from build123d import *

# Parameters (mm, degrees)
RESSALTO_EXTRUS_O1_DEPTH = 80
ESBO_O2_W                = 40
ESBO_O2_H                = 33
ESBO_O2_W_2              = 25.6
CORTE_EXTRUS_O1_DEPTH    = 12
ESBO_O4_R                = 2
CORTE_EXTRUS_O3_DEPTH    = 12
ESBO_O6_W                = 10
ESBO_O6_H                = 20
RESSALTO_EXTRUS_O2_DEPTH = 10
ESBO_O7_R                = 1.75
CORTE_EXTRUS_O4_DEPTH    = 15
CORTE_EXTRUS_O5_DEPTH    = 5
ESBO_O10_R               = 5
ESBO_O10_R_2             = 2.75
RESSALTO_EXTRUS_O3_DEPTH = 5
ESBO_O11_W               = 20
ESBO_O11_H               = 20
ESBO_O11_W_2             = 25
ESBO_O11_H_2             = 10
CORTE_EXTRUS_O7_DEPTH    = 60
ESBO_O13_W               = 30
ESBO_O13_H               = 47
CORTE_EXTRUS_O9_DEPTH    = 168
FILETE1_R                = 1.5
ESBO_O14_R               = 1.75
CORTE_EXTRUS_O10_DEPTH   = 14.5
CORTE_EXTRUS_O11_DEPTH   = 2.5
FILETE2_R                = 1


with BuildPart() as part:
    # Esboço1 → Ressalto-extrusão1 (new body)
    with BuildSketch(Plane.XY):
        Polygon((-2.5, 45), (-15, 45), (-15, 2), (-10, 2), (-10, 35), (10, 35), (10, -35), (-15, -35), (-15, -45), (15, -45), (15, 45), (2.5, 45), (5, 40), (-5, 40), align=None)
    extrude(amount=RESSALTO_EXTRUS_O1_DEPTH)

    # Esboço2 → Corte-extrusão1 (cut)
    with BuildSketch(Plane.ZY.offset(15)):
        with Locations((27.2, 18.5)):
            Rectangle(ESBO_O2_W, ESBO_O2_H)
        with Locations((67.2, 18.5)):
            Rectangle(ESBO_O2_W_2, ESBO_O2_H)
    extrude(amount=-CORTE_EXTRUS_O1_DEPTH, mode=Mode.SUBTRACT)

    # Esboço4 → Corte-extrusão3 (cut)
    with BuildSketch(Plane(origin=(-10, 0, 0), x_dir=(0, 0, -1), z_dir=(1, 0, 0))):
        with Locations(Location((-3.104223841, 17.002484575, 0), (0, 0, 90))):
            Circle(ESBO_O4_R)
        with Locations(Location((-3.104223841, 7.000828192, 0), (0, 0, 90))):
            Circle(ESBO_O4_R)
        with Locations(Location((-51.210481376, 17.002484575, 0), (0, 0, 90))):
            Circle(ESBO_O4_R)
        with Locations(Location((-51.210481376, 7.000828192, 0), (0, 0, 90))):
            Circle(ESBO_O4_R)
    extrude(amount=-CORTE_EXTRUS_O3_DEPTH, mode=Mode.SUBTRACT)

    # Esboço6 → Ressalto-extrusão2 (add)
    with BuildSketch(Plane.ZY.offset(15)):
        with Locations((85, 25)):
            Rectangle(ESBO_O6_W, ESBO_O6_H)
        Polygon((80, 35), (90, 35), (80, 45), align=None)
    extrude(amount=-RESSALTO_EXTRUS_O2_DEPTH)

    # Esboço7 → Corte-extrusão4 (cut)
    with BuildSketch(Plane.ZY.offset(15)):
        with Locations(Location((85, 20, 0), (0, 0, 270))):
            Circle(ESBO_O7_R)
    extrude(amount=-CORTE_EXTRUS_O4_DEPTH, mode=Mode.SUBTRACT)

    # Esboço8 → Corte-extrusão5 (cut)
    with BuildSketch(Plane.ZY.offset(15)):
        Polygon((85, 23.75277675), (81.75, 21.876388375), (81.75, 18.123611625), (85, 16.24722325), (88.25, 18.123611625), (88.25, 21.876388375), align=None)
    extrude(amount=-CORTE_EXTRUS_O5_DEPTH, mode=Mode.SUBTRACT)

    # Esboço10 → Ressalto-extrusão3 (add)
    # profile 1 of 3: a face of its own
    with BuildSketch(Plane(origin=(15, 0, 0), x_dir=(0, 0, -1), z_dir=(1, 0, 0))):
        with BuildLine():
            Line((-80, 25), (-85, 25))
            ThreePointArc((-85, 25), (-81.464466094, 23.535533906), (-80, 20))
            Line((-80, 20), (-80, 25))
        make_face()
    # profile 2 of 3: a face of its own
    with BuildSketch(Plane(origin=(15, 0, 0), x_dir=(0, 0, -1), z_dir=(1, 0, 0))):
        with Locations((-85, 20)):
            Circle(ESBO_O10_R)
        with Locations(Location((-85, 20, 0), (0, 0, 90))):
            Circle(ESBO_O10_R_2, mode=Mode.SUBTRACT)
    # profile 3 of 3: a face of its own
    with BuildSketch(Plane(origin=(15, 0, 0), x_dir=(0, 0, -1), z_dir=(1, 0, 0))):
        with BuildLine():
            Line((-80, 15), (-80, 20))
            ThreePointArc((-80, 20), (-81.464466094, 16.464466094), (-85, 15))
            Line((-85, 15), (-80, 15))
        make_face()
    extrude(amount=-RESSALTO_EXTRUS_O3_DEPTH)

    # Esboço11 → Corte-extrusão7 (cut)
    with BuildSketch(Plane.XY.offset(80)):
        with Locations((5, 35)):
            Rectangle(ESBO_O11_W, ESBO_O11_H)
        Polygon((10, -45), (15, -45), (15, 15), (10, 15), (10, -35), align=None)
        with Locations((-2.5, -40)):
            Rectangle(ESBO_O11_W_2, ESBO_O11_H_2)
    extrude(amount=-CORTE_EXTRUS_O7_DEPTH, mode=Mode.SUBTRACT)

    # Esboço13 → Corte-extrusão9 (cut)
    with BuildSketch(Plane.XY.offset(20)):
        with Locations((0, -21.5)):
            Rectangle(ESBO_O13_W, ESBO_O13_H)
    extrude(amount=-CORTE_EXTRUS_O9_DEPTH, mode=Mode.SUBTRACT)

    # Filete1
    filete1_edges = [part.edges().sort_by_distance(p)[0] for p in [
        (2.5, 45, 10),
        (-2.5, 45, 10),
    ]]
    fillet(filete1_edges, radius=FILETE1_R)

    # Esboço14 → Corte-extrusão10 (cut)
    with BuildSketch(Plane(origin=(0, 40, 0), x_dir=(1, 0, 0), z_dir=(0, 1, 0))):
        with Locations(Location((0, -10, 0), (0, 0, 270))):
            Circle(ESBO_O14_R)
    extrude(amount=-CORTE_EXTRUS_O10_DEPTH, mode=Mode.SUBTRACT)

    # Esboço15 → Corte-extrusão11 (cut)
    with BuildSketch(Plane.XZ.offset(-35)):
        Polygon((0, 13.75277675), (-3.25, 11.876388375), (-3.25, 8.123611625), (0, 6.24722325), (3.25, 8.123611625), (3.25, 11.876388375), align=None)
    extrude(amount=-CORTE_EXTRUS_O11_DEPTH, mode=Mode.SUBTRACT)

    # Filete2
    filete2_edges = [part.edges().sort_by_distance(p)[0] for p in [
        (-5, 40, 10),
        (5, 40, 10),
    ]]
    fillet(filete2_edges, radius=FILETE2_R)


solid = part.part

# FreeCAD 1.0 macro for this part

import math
import FreeCAD as App
import Part
import Sketcher

V = App.Vector
Q = App.Units.Quantity


def edges_at(feature, points):
    """Names of the edges that pass closest to the given points."""
    edges = feature.Shape.Edges
    near = lambda p: min(range(len(edges)), key=lambda i: edges[i].distToShape(Part.Vertex(*p))[0])
    return sorted({f"Edge{near(p) + 1}" for p in points})

doc = App.newDocument("Part")
body = doc.addObject("PartDesign::Body", "Body")

# Sketch on XY plane
sketch1 = body.newObject("Sketcher::SketchObject", "Sketch")
sketch1.AttachmentSupport = (doc.getObject("XY_Plane"), [""])
sketch1.MapMode = "FlatFace"
sketch1.addGeometry([
    Part.LineSegment(V(-2.5, 45, 0), V(-15, 45, 0)),  # 0
    Part.LineSegment(V(-15, 45, 0), V(-15, 2, 0)),  # 1
    Part.LineSegment(V(-15, 2, 0), V(-10, 2, 0)),  # 2
    Part.LineSegment(V(-10, 2, 0), V(-10, 35, 0)),  # 3
    Part.LineSegment(V(-10, 35, 0), V(10, 35, 0)),  # 4
    Part.LineSegment(V(10, 35, 0), V(10, -35, 0)),  # 5
    Part.LineSegment(V(10, -35, 0), V(-15, -35, 0)),  # 6
    Part.LineSegment(V(-15, -35, 0), V(-15, -45, 0)),  # 7
    Part.LineSegment(V(-15, -45, 0), V(15, -45, 0)),  # 8
    Part.LineSegment(V(15, -45, 0), V(15, 45, 0)),  # 9
    Part.LineSegment(V(15, 45, 0), V(2.5, 45, 0)),  # 10
    Part.LineSegment(V(2.5, 45, 0), V(5, 40, 0)),  # 11
    Part.LineSegment(V(5, 40, 0), V(-5, 40, 0)),  # 12
    Part.LineSegment(V(-5, 40, 0), V(-2.5, 45, 0)),  # 13
], False)
sketch1.addConstraint([
    Sketcher.Constraint("Coincident", 0, 2, 1, 1),
    Sketcher.Constraint("Coincident", 1, 2, 2, 1),
    Sketcher.Constraint("Coincident", 2, 2, 3, 1),
    Sketcher.Constraint("Coincident", 3, 2, 4, 1),
    Sketcher.Constraint("Coincident", 4, 2, 5, 1),
    Sketcher.Constraint("Coincident", 5, 2, 6, 1),
    Sketcher.Constraint("Coincident", 6, 2, 7, 1),
    Sketcher.Constraint("Coincident", 7, 2, 8, 1),
    Sketcher.Constraint("Coincident", 8, 2, 9, 1),
    Sketcher.Constraint("Coincident", 9, 2, 10, 1),
    Sketcher.Constraint("Coincident", 10, 2, 11, 1),
    Sketcher.Constraint("Coincident", 11, 2, 12, 1),
    Sketcher.Constraint("Coincident", 12, 2, 13, 1),
    Sketcher.Constraint("Coincident", 13, 2, 0, 1),
    Sketcher.Constraint("Horizontal", 0),
    Sketcher.Constraint("Vertical", 1),
    Sketcher.Constraint("Horizontal", 2),
    Sketcher.Constraint("Vertical", 3),
    Sketcher.Constraint("Horizontal", 4),
    Sketcher.Constraint("Vertical", 5),
    Sketcher.Constraint("Horizontal", 6),
    Sketcher.Constraint("Vertical", 7),
    Sketcher.Constraint("Horizontal", 8),
    Sketcher.Constraint("Vertical", 9),
    Sketcher.Constraint("Horizontal", 10),
    Sketcher.Constraint("Horizontal", 12),
    Sketcher.Constraint("Symmetric", 3, 2, 5, 2, -1, 1),
    Sketcher.Constraint("Symmetric", 0, 2, 8, 2, -1, 1),
    Sketcher.Constraint("Symmetric", 7, 2, 9, 2, -1, 1),
    Sketcher.Constraint("Equal", 0, 10),
    Sketcher.Constraint("Equal", 12, 7),
    Sketcher.Constraint("Equal", 11, 13),
    Sketcher.Constraint("DistanceX", 2, 1, 2, 2, 5.0),
    Sketcher.Constraint("DistanceX", 4, 1, 4, 2, 20.0),
    Sketcher.Constraint("DistanceX", 12, 2, 12, 1, 10.0),
    Sketcher.Constraint("DistanceY", 1, 2, 1, 1, 43.0),
    Sketcher.Constraint("DistanceY", 5, 2, 5, 1, 70.0),
    Sketcher.Constraint("DistanceX", 0, 2, 0, 1, 12.5),
    Sketcher.Constraint("DistanceY", -1, 1, 11, 2, 40.0),
])
pad1 = body.newObject("PartDesign::Pad", "Pad")
pad1.Profile = sketch1
pad1.Length = 80

# Sketch on YZ plane
sketch2 = body.newObject("Sketcher::SketchObject", "Sketch001")
sketch2.AttachmentSupport = (doc.getObject("YZ_Plane"), [""])
sketch2.MapMode = "FlatFace"
sketch2.AttachmentOffset = App.Placement(V(0, 0, -15), App.Rotation())
sketch2.addGeometry([
    Part.LineSegment(V(35, 7.2, 0), V(2, 7.2, 0)),  # 0
    Part.LineSegment(V(2, 7.2, 0), V(2, 47.2, 0)),  # 1
    Part.LineSegment(V(2, 47.2, 0), V(35, 47.2, 0)),  # 2
    Part.LineSegment(V(35, 47.2, 0), V(35, 7.2, 0)),  # 3
    Part.LineSegment(V(35, 54.4, 0), V(2, 54.4, 0)),  # 4
    Part.LineSegment(V(2, 54.4, 0), V(2, 80, 0)),  # 5
    Part.LineSegment(V(2, 80, 0), V(35, 80, 0)),  # 6
    Part.LineSegment(V(35, 80, 0), V(35, 54.4, 0)),  # 7
], False)
sketch2.addConstraint([
    Sketcher.Constraint("Coincident", 0, 2, 1, 1),
    Sketcher.Constraint("Coincident", 1, 2, 2, 1),
    Sketcher.Constraint("Coincident", 2, 2, 3, 1),
    Sketcher.Constraint("Coincident", 3, 2, 0, 1),
    Sketcher.Constraint("Coincident", 4, 2, 5, 1),
    Sketcher.Constraint("Coincident", 5, 2, 6, 1),
    Sketcher.Constraint("Coincident", 6, 2, 7, 1),
    Sketcher.Constraint("Coincident", 7, 2, 4, 1),
    Sketcher.Constraint("Horizontal", 0),
    Sketcher.Constraint("Vertical", 1),
    Sketcher.Constraint("Horizontal", 2),
    Sketcher.Constraint("Vertical", 3),
    Sketcher.Constraint("Horizontal", 4),
    Sketcher.Constraint("Vertical", 5),
    Sketcher.Constraint("Horizontal", 6),
    Sketcher.Constraint("Vertical", 7),
    Sketcher.Constraint("Vertical", 1, 2, 4, 2),
    Sketcher.Constraint("Vertical", 3, 2, 6, 2),
    Sketcher.Constraint("DistanceX", 0, 2, 0, 1, 33.0),
    Sketcher.Constraint("DistanceY", 1, 1, 1, 2, 40.0),
    Sketcher.Constraint("DistanceY", 5, 1, 5, 2, 25.6),
    Sketcher.Constraint("DistanceX", -1, 1, 0, 2, 2.0),
    Sketcher.Constraint("DistanceY", -1, 1, 5, 2, 80.0),
    Sketcher.Constraint("DistanceY", -1, 1, 0, 2, 7.2),
])
pocket1 = body.newObject("PartDesign::Pocket", "Pocket")
pocket1.Profile = sketch2
pocket1.Length = 12
pocket1.Reversed = True

# Sketch on YZ plane
sketch3 = body.newObject("Sketcher::SketchObject", "Sketch002")
sketch3.AttachmentSupport = (doc.getObject("YZ_Plane"), [""])
sketch3.MapMode = "FlatFace"
sketch3.AttachmentOffset = App.Placement(V(0, 0, -10), App.Rotation())
sketch3.addGeometry([
    Part.Circle(V(17.002485, 3.104224, 0), V(0, 0, 1), 2),
    Part.Circle(V(7.000828, 3.104224, 0), V(0, 0, 1), 2),
    Part.Circle(V(17.002485, 51.210481, 0), V(0, 0, 1), 2),
    Part.Circle(V(7.000828, 51.210481, 0), V(0, 0, 1), 2),
], False)
sketch3.addConstraint([
    Sketcher.Constraint("Equal", 0, 1),
    Sketcher.Constraint("Equal", 1, 2),
    Sketcher.Constraint("Equal", 2, 3),
    Sketcher.Constraint("Horizontal", 0, 3, 1, 3),
    Sketcher.Constraint("Horizontal", 2, 3, 3, 3),
    Sketcher.Constraint("Vertical", 0, 3, 2, 3),
    Sketcher.Constraint("Vertical", 1, 3, 3, 3),
    Sketcher.Constraint("Diameter", 0, 4.0),
    Sketcher.Constraint("DistanceX", -1, 1, 1, 3, 7.000828),
    Sketcher.Constraint("DistanceY", -1, 1, 2, 3, 51.210481),
    Sketcher.Constraint("DistanceX", -1, 1, 0, 3, 17.002485),
    Sketcher.Constraint("DistanceY", -1, 1, 0, 3, 3.104224),
])
pocket2 = body.newObject("PartDesign::Pocket", "Pocket001")
pocket2.Profile = sketch3
pocket2.Length = 12

# Sketch on YZ plane
sketch4 = body.newObject("Sketcher::SketchObject", "Sketch003")
sketch4.AttachmentSupport = (doc.getObject("YZ_Plane"), [""])
sketch4.MapMode = "FlatFace"
sketch4.AttachmentOffset = App.Placement(V(0, 0, -15), App.Rotation())
sketch4.addGeometry([
    Part.LineSegment(V(15, 80, 0), V(15, 90, 0)),
    Part.LineSegment(V(15, 90, 0), V(35, 90, 0)),
    Part.LineSegment(V(35, 90, 0), V(45, 80, 0)),
    Part.LineSegment(V(45, 80, 0), V(15, 80, 0)),
], False)
sketch4.addConstraint([
    Sketcher.Constraint("Coincident", 0, 2, 1, 1),
    Sketcher.Constraint("Coincident", 1, 2, 2, 1),
    Sketcher.Constraint("Coincident", 2, 2, 3, 1),
    Sketcher.Constraint("Coincident", 3, 2, 0, 1),
    Sketcher.Constraint("Vertical", 0),
    Sketcher.Constraint("Horizontal", 1),
    Sketcher.Constraint("Horizontal", 3),
    Sketcher.Constraint("DistanceX", 1, 1, 1, 2, 20.0),
    Sketcher.Constraint("DistanceX", 3, 2, 3, 1, 30.0),
    Sketcher.Constraint("DistanceY", 0, 1, 0, 2, 10.0),
    Sketcher.Constraint("DistanceX", -1, 1, 0, 2, 15.0),
    Sketcher.Constraint("DistanceY", -1, 1, 0, 2, 90.0),
])
pad2 = body.newObject("PartDesign::Pad", "Pad001")
pad2.Profile = sketch4
pad2.Length = 10

# Sketch on YZ plane
sketch5 = body.newObject("Sketcher::SketchObject", "Sketch004")
sketch5.AttachmentSupport = (doc.getObject("YZ_Plane"), [""])
sketch5.MapMode = "FlatFace"
sketch5.AttachmentOffset = App.Placement(V(0, 0, -15), App.Rotation())
sketch5.addGeometry(Part.Circle(V(20, 85, 0), V(0, 0, 1), 1.75), False)
sketch5.addConstraint([
    Sketcher.Constraint("Diameter", 0, 3.5),
    Sketcher.Constraint("DistanceX", -1, 1, 0, 3, 20.0),
    Sketcher.Constraint("DistanceY", -1, 1, 0, 3, 85.0),
])
pocket3 = body.newObject("PartDesign::Pocket", "Pocket002")
pocket3.Profile = sketch5
pocket3.Length = 15
pocket3.Reversed = True

# Sketch on YZ plane
sketch6 = body.newObject("Sketcher::SketchObject", "Sketch005")
sketch6.AttachmentSupport = (doc.getObject("YZ_Plane"), [""])
sketch6.MapMode = "FlatFace"
sketch6.AttachmentOffset = App.Placement(V(0, 0, -15), App.Rotation())
sketch6.addGeometry([
    Part.LineSegment(V(23.752777, 85, 0), V(21.876388, 81.75, 0)),  # 0
    Part.LineSegment(V(21.876388, 81.75, 0), V(18.123612, 81.75, 0)),  # 1
    Part.LineSegment(V(18.123612, 81.75, 0), V(16.247223, 85, 0)),  # 2
    Part.LineSegment(V(16.247223, 85, 0), V(18.123612, 88.25, 0)),  # 3
    Part.LineSegment(V(18.123612, 88.25, 0), V(21.876388, 88.25, 0)),  # 4
    Part.LineSegment(V(21.876388, 88.25, 0), V(23.752777, 85, 0)),  # 5
], False)
sketch6.addConstraint([
    Sketcher.Constraint("Coincident", 0, 2, 1, 1),
    Sketcher.Constraint("Coincident", 1, 2, 2, 1),
    Sketcher.Constraint("Coincident", 2, 2, 3, 1),
    Sketcher.Constraint("Coincident", 3, 2, 4, 1),
    Sketcher.Constraint("Coincident", 4, 2, 5, 1),
    Sketcher.Constraint("Coincident", 5, 2, 0, 1),
    Sketcher.Constraint("Horizontal", 1),
    Sketcher.Constraint("Horizontal", 4),
    Sketcher.Constraint("Parallel", 0, 3),
    Sketcher.Constraint("Parallel", 2, 5),
    Sketcher.Constraint("Horizontal", 2, 2, 5, 2),
    Sketcher.Constraint("Vertical", 1, 2, 3, 2),
    Sketcher.Constraint("Vertical", 0, 2, 4, 2),
    Sketcher.Constraint("Angle", 0, Q("-120 deg")),
    Sketcher.Constraint("DistanceY", -1, 1, 2, 2, 85.0),
    Sketcher.Constraint("DistanceY", 1, 2, 3, 2, 6.5),
    Sketcher.Constraint("DistanceX", 1, 2, 1, 1, 3.752777),
    Sketcher.Constraint("DistanceX", -1, 1, 0, 2, 21.876388),
])
pocket4 = body.newObject("PartDesign::Pocket", "Pocket003")
pocket4.Profile = sketch6
pocket4.Length = 5
pocket4.Reversed = True

# Sketch on YZ plane
sketch7 = body.newObject("Sketcher::SketchObject", "Sketch006")
sketch7.AttachmentSupport = (doc.getObject("YZ_Plane"), [""])
sketch7.MapMode = "FlatFace"
sketch7.AttachmentOffset = App.Placement(V(0, 0, 15), App.Rotation())
sketch7.addGeometry([
    Part.LineSegment(V(25, 80, 0), V(25, 85, 0)),  # 0
    Part.ArcOfCircle(Part.Circle(V(20, 85, 0), V(0, 0, 1), 5), math.radians(0), math.radians(180)),  # 1
    Part.LineSegment(V(15, 85, 0), V(15, 80, 0)),  # 2
    Part.LineSegment(V(15, 80, 0), V(25, 80, 0)),  # 3
    Part.Circle(V(20, 85, 0), V(0, 0, 1), 2.75),  # 4
], False)
sketch7.addConstraint([
    Sketcher.Constraint("Tangent", 0, 2, 1, 1),
    Sketcher.Constraint("Tangent", 1, 2, 2, 1),
    Sketcher.Constraint("Coincident", 2, 2, 3, 1),
    Sketcher.Constraint("Coincident", 3, 2, 0, 1),
    Sketcher.Constraint("Vertical", 0),
    Sketcher.Constraint("Vertical", 2),
    Sketcher.Constraint("Horizontal", 3),
    Sketcher.Constraint("Coincident", 4, 3, 1, 3),
    Sketcher.Constraint("Radius", 1, 5.0),
    Sketcher.Constraint("Diameter", 4, 5.5),
    Sketcher.Constraint("DistanceY", 0, 1, 0, 2, 5.0),
    Sketcher.Constraint("DistanceX", -1, 1, 1, 3, 20.0),
    Sketcher.Constraint("DistanceY", -1, 1, 1, 3, 85.0),
])
pad3 = body.newObject("PartDesign::Pad", "Pad002")
pad3.Profile = sketch7
pad3.Length = 5
pad3.Reversed = True

# Sketch on XY plane
sketch8 = body.newObject("Sketcher::SketchObject", "Sketch007")
sketch8.AttachmentSupport = (doc.getObject("XY_Plane"), [""])
sketch8.MapMode = "FlatFace"
sketch8.AttachmentOffset = App.Placement(V(0, 0, 80), App.Rotation())
sketch8.addGeometry([
    Part.LineSegment(V(-5, 45, 0), V(-5, 25, 0)),  # 0
    Part.LineSegment(V(-5, 25, 0), V(15, 25, 0)),  # 1
    Part.LineSegment(V(15, 25, 0), V(15, 45, 0)),  # 2
    Part.LineSegment(V(15, 45, 0), V(-5, 45, 0)),  # 3
    Part.LineSegment(V(15, -45, 0), V(15, 15, 0)),  # 4
    Part.LineSegment(V(15, 15, 0), V(10, 15, 0)),  # 5
    Part.LineSegment(V(10, 15, 0), V(10, -35, 0)),  # 6
    Part.LineSegment(V(10, -35, 0), V(-15, -35, 0)),  # 7
    Part.LineSegment(V(-15, -35, 0), V(-15, -45, 0)),  # 8
    Part.LineSegment(V(-15, -45, 0), V(15, -45, 0)),  # 9
], False)
sketch8.addConstraint([
    Sketcher.Constraint("Coincident", 0, 2, 1, 1),
    Sketcher.Constraint("Coincident", 1, 2, 2, 1),
    Sketcher.Constraint("Coincident", 2, 2, 3, 1),
    Sketcher.Constraint("Coincident", 3, 2, 0, 1),
    Sketcher.Constraint("Coincident", 4, 2, 5, 1),
    Sketcher.Constraint("Coincident", 5, 2, 6, 1),
    Sketcher.Constraint("Coincident", 6, 2, 7, 1),
    Sketcher.Constraint("Coincident", 7, 2, 8, 1),
    Sketcher.Constraint("Coincident", 8, 2, 9, 1),
    Sketcher.Constraint("Coincident", 9, 2, 4, 1),
    Sketcher.Constraint("Vertical", 0),
    Sketcher.Constraint("Horizontal", 1),
    Sketcher.Constraint("Vertical", 2),
    Sketcher.Constraint("Horizontal", 3),
    Sketcher.Constraint("Vertical", 4),
    Sketcher.Constraint("Horizontal", 5),
    Sketcher.Constraint("Vertical", 6),
    Sketcher.Constraint("Horizontal", 7),
    Sketcher.Constraint("Vertical", 8),
    Sketcher.Constraint("Horizontal", 9),
    Sketcher.Constraint("Symmetric", 2, 2, 8, 2, -1, 1),
    Sketcher.Constraint("Vertical", 2, 2, 4, 2),
    Sketcher.Constraint("Equal", 3, 0),
    Sketcher.Constraint("DistanceX", 1, 1, 1, 2, 20.0),
    Sketcher.Constraint("DistanceX", 5, 2, 5, 1, 5.0),
    Sketcher.Constraint("DistanceX", 7, 2, 7, 1, 25.0),
    Sketcher.Constraint("DistanceY", 4, 1, 4, 2, 60.0),
    Sketcher.Constraint("DistanceY", 6, 2, 6, 1, 50.0),
    Sketcher.Constraint("DistanceY", -1, 1, 0, 2, 25.0),
])
pocket5 = body.newObject("PartDesign::Pocket", "Pocket004")
pocket5.Profile = sketch8
pocket5.Length = 60

# Sketch on XY plane
sketch9 = body.newObject("Sketcher::SketchObject", "Sketch008")
sketch9.AttachmentSupport = (doc.getObject("XY_Plane"), [""])
sketch9.MapMode = "FlatFace"
sketch9.AttachmentOffset = App.Placement(V(0, 0, 20), App.Rotation())
sketch9.addGeometry([
    Part.LineSegment(V(-15, 2, 0), V(-15, -45, 0)),
    Part.LineSegment(V(-15, -45, 0), V(15, -45, 0)),
    Part.LineSegment(V(15, -45, 0), V(15, 2, 0)),
    Part.LineSegment(V(15, 2, 0), V(-15, 2, 0)),
], False)
sketch9.addConstraint([
    Sketcher.Constraint("Coincident", 0, 2, 1, 1),
    Sketcher.Constraint("Coincident", 1, 2, 2, 1),
    Sketcher.Constraint("Coincident", 2, 2, 3, 1),
    Sketcher.Constraint("Coincident", 3, 2, 0, 1),
    Sketcher.Constraint("Vertical", 0),
    Sketcher.Constraint("Horizontal", 1),
    Sketcher.Constraint("Vertical", 2),
    Sketcher.Constraint("Horizontal", 3),
    Sketcher.Constraint("DistanceX", 1, 1, 1, 2, 30.0),
    Sketcher.Constraint("DistanceY", 0, 2, 0, 1, 47.0),
    Sketcher.Constraint("DistanceX", 0, 2, -1, 1, 15.0),
    Sketcher.Constraint("DistanceY", 0, 2, -1, 1, 45.0),
])
pocket6 = body.newObject("PartDesign::Pocket", "Pocket005")
pocket6.Profile = sketch9
pocket6.Length = 168
doc.recompute()

fillet = body.newObject("PartDesign::Fillet", "Fillet")
fillet.Base = (pocket6, edges_at(pocket6, [(2.5, 45, 10), (-2.5, 45, 10)]))
fillet.Radius = 1.5

# Sketch on XZ plane
sketch10 = body.newObject("Sketcher::SketchObject", "Sketch009")
sketch10.AttachmentSupport = (doc.getObject("XZ_Plane"), [""])
sketch10.MapMode = "FlatFace"
sketch10.AttachmentOffset = App.Placement(V(0, 0, -40), App.Rotation())
sketch10.addGeometry(Part.Circle(V(0, 10, 0), V(0, 0, 1), 1.75), False)
sketch10.addConstraint([
    Sketcher.Constraint("PointOnObject", 0, 3, -2),
    Sketcher.Constraint("Diameter", 0, 3.5),
    Sketcher.Constraint("DistanceY", -1, 1, 0, 3, 10.0),
])
pocket7 = body.newObject("PartDesign::Pocket", "Pocket006")
pocket7.Profile = sketch10
pocket7.Length = 14.5
pocket7.Reversed = True

# Sketch on XZ plane
sketch11 = body.newObject("Sketcher::SketchObject", "Sketch010")
sketch11.AttachmentSupport = (doc.getObject("XZ_Plane"), [""])
sketch11.MapMode = "FlatFace"
sketch11.AttachmentOffset = App.Placement(V(0, 0, -35), App.Rotation())
sketch11.addGeometry([
    Part.LineSegment(V(0, 13.752777, 0), V(-3.25, 11.876388, 0)),  # 0
    Part.LineSegment(V(-3.25, 11.876388, 0), V(-3.25, 8.123612, 0)),  # 1
    Part.LineSegment(V(-3.25, 8.123612, 0), V(0, 6.247223, 0)),  # 2
    Part.LineSegment(V(0, 6.247223, 0), V(3.25, 8.123612, 0)),  # 3
    Part.LineSegment(V(3.25, 8.123612, 0), V(3.25, 11.876388, 0)),  # 4
    Part.LineSegment(V(3.25, 11.876388, 0), V(0, 13.752777, 0)),  # 5
], False)
sketch11.addConstraint([
    Sketcher.Constraint("Coincident", 0, 2, 1, 1),
    Sketcher.Constraint("Coincident", 1, 2, 2, 1),
    Sketcher.Constraint("Coincident", 2, 2, 3, 1),
    Sketcher.Constraint("Coincident", 3, 2, 4, 1),
    Sketcher.Constraint("Coincident", 4, 2, 5, 1),
    Sketcher.Constraint("Coincident", 5, 2, 0, 1),
    Sketcher.Constraint("Vertical", 1),
    Sketcher.Constraint("Vertical", 4),
    Sketcher.Constraint("Symmetric", 1, 2, 3, 2, -2),
    Sketcher.Constraint("PointOnObject", 2, 2, -2),
    Sketcher.Constraint("PointOnObject", 5, 2, -2),
    Sketcher.Constraint("Parallel", 0, 3),
    Sketcher.Constraint("Parallel", 2, 5),
    Sketcher.Constraint("Angle", 0, Q("-150 deg")),
    Sketcher.Constraint("DistanceX", 1, 2, 3, 2, 6.5),
    Sketcher.Constraint("DistanceY", 1, 2, 1, 1, 3.752777),
    Sketcher.Constraint("DistanceY", -1, 1, 0, 2, 11.876388),
])
pocket8 = body.newObject("PartDesign::Pocket", "Pocket007")
pocket8.Profile = sketch11
pocket8.Length = 2.5
doc.recompute()

fillet2 = body.newObject("PartDesign::Fillet", "Fillet001")
fillet2.Base = (pocket8, edges_at(pocket8, [(-5, 40, 10), (5, 40, 10)]))
fillet2.Radius = 1

doc.recompute()
